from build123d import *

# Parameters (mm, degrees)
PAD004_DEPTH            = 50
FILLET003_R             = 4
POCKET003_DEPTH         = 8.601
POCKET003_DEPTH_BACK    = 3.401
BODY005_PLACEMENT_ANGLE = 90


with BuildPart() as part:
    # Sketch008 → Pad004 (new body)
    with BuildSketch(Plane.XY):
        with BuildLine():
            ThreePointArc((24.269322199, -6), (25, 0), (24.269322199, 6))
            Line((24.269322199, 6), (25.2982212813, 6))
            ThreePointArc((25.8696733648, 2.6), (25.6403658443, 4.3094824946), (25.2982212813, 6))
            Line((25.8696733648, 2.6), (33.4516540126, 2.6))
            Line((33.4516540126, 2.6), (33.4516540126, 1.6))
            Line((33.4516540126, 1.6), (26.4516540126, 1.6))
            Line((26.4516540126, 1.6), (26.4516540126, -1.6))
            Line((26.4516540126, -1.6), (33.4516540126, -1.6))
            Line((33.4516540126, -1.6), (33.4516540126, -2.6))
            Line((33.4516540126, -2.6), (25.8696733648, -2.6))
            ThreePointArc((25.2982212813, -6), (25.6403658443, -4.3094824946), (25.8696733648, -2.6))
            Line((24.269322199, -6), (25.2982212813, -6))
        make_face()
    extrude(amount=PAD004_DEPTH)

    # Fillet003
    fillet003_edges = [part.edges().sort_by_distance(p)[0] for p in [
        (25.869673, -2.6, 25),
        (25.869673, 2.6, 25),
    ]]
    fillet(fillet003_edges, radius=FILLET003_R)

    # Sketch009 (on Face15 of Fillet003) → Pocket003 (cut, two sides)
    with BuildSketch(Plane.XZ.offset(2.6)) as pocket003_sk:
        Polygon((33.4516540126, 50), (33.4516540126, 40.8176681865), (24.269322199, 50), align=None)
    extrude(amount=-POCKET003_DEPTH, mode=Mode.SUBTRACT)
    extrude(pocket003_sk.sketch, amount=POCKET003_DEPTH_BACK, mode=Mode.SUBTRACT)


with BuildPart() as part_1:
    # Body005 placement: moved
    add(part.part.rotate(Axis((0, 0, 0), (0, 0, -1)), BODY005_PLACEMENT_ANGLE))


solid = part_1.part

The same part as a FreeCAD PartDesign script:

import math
import FreeCAD as App
import Part
import Sketcher


def edges_at(feature, points):
    """Names of the edges that pass closest to the given points."""
    edges = feature.Shape.Edges
    near = lambda p: min(range(len(edges)), key=lambda i: edges[i].distToShape(Part.Vertex(*p))[0])
    return sorted({f"Edge{near(p) + 1}" for p in points})


def add_polygon(sketch, points):
    """Adds a closed chain of lines whose ends are joined by coincident constraints."""
    first, n = sketch.GeometryCount, len(points)
    for a, b in zip(points, points[1:] + points[:1]):
        sketch.addGeometry(Part.LineSegment(App.Vector(*a, 0), App.Vector(*b, 0)), False)
    for i in range(n):
        sketch.addConstraint(Sketcher.Constraint("Coincident", first + i, 2, first + (i + 1) % n, 1))

doc = App.newDocument("Part")
body = doc.addObject("PartDesign::Body", "Body")

# Sketch on XY plane
sketch1 = body.newObject("Sketcher::SketchObject", "Sketch")
sketch1.AttachmentSupport = (doc.getObject("XY_Plane"), [""])
sketch1.MapMode = "FlatFace"
sketch1.addGeometry([
    Part.ArcOfCircle(Part.Circle(App.Vector(0, 0, 0), App.Vector(0, 0, 1), 25), math.radians(-14), math.radians(14)),  # 0
    Part.LineSegment(App.Vector(24.3, -6, 0), App.Vector(25.3, -6, 0)),  # 1
    Part.ArcOfCircle(Part.Circle(App.Vector(0, 0, 0), App.Vector(0, 0, 1), 26), math.radians(-13.34), math.radians(-5.74)),  # 2
    Part.LineSegment(App.Vector(25.9, -2.6, 0), App.Vector(33.5, -2.6, 0)),  # 3
    Part.LineSegment(App.Vector(33.5, -2.6, 0), App.Vector(33.5, -1.6, 0)),  # 4
    Part.LineSegment(App.Vector(33.5, -1.6, 0), App.Vector(26.5, -1.6, 0)),  # 5
    Part.LineSegment(App.Vector(26.5, -1.6, 0), App.Vector(26.5, 1.6, 0)),  # 6
    Part.LineSegment(App.Vector(26.5, 1.6, 0), App.Vector(33.5, 1.6, 0)),  # 7
    Part.LineSegment(App.Vector(33.5, 1.6, 0), App.Vector(33.5, 2.6, 0)),  # 8
    Part.LineSegment(App.Vector(33.5, 2.6, 0), App.Vector(25.9, 2.6, 0)),  # 9
    Part.ArcOfCircle(Part.Circle(App.Vector(0, 0, 0), App.Vector(0, 0, 1), 26), math.radians(5.74), math.radians(13.34)),  # 10
    Part.LineSegment(App.Vector(25.3, 6, 0), App.Vector(24.3, 6, 0)),  # 11
], False)
sketch1.addConstraint([
    Sketcher.Constraint("Coincident", 0, 1, 1, 1),
    Sketcher.Constraint("Coincident", 1, 2, 2, 1),
    Sketcher.Constraint("Coincident", 2, 2, 3, 1),
    Sketcher.Constraint("Coincident", 3, 2, 4, 1),
    Sketcher.Constraint("Coincident", 4, 2, 5, 1),
    Sketcher.Constraint("Coincident", 5, 2, 6, 1),
    Sketcher.Constraint("Coincident", 6, 2, 7, 1),
    Sketcher.Constraint("Coincident", 7, 2, 8, 1),
    Sketcher.Constraint("Coincident", 8, 2, 9, 1),
    Sketcher.Constraint("Coincident", 9, 2, 10, 1),
    Sketcher.Constraint("Coincident", 10, 2, 11, 1),
    Sketcher.Constraint("Coincident", 11, 2, 0, 2),
    Sketcher.Constraint("Horizontal", 1),
    Sketcher.Constraint("Horizontal", 3),
    Sketcher.Constraint("Vertical", 4),
    Sketcher.Constraint("Horizontal", 5),
    Sketcher.Constraint("Vertical", 6),
    Sketcher.Constraint("Horizontal", 7),
    Sketcher.Constraint("Vertical", 8),
    Sketcher.Constraint("Horizontal", 9),
    Sketcher.Constraint("Horizontal", 11),
    Sketcher.Constraint("Coincident", 0, 3, -1, 1),
    Sketcher.Constraint("Coincident", 2, 3, -1, 1),
    Sketcher.Constraint("Coincident", 10, 3, -1, 1),
    Sketcher.Constraint("Equal", 2, 10),
    Sketcher.Constraint("Symmetric", 4, 2, 7, 2, -1),
    Sketcher.Constraint("Vertical", 2, 2, 9, 2),
    Sketcher.Constraint("Vertical", 1, 2, 10, 2),
    Sketcher.Constraint("Radius", 0, 25.0),
    Sketcher.Constraint("Radius", 2, 26.0),
    Sketcher.Constraint("DistanceX", 5, 2, 5, 1, 7.0),
    Sketcher.Constraint("DistanceY", 4, 1, 4, 2, 1.0),
    Sketcher.Constraint("DistanceY", 6, 1, 6, 2, 3.2),
    Sketcher.Constraint("DistanceY", 0, 1, -1, 1, 6.0),
    Sketcher.Constraint("DistanceX", 3, 1, 3, 2, 7.581981),
])
pad1 = body.newObject("PartDesign::Pad", "Pad")
pad1.Profile = sketch1
pad1.Length = 50
doc.recompute()

fillet = body.newObject("PartDesign::Fillet", "Fillet")
fillet.Base = (pad1, edges_at(pad1, [(25.87, -2.6, 25), (25.87, 2.6, 25)]))
fillet.Radius = 4

# Sketch on XZ plane
sketch2 = body.newObject("Sketcher::SketchObject", "Sketch001")
sketch2.AttachmentSupport = (doc.getObject("XZ_Plane"), [""])
sketch2.MapMode = "FlatFace"
sketch2.AttachmentOffset = App.Placement(App.Vector(0, 0, 2.6), App.Rotation())
add_polygon(sketch2, [(33, 41), (33, 50), (24, 50)])  # lines 0-2
sketch2.addConstraint([
    Sketcher.Constraint("Vertical", 0),
    Sketcher.Constraint("Horizontal", 1),
    Sketcher.Constraint("Equal", 1, 0),
    Sketcher.Constraint("DistanceY", -1, 1, 0, 2, 50.0),
    Sketcher.Constraint("DistanceX", 1, 2, 1, 1, 9.182332),
    Sketcher.Constraint("DistanceX", -1, 1, 0, 2, 33.451654),
])
pocket1 = body.newObject("PartDesign::Pocket", "Pocket")
pocket1.Profile = sketch2
pocket1.Type = "ThroughAll"
pocket1.Midplane = True
body2 = doc.addObject("PartDesign::Body", "Body001")
doc.recompute()

body.Placement = App.Placement(App.Vector(0, 0, 0), App.Rotation(App.Vector(0, 0, -1), 90))
boolean = body2.newObject("PartDesign::Boolean", "Boolean")
boolean.Type = "Fuse"
boolean.addObjects([body])

doc.recompute()
